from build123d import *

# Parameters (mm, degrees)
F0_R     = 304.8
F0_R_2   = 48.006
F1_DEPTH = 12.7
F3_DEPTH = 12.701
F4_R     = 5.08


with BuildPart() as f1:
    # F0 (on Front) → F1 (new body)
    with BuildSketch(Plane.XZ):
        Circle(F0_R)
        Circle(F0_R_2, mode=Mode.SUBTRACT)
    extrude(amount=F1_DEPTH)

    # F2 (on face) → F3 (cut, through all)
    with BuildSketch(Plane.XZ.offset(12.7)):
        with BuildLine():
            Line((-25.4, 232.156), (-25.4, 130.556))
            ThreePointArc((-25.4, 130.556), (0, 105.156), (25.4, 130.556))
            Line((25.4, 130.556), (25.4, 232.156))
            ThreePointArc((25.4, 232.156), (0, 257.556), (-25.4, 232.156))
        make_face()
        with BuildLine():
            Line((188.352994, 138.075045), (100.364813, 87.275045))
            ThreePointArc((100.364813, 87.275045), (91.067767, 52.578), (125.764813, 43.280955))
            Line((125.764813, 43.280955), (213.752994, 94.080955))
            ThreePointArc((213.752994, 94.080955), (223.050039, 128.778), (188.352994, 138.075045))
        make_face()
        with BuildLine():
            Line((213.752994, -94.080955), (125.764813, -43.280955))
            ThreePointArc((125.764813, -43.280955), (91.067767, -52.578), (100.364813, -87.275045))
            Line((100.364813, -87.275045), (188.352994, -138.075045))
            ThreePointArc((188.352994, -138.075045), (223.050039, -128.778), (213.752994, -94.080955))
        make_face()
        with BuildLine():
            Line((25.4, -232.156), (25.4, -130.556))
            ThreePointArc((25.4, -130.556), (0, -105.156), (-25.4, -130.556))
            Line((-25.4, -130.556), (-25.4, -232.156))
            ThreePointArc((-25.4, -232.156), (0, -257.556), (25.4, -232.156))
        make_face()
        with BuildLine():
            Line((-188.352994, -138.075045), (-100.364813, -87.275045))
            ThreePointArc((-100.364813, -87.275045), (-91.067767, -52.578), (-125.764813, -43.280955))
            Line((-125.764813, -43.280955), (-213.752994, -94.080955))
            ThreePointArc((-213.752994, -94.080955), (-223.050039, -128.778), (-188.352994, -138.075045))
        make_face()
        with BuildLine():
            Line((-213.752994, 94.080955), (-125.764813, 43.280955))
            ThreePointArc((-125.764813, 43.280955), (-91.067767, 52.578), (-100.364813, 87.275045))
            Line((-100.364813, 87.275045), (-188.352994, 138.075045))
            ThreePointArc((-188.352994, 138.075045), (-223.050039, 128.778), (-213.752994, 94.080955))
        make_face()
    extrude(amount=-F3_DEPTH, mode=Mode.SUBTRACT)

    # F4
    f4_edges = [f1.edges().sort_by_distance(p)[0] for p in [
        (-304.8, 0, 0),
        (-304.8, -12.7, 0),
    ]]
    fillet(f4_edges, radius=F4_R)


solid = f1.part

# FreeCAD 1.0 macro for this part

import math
import FreeCAD as App
import Part
import Sketcher

V = App.Vector
Q = App.Units.Quantity


def edges_at(feature, points):
    """Names of the edges that pass closest to the given points."""
    edges = feature.Shape.Edges
    near = lambda p: min(range(len(edges)), key=lambda i: edges[i].distToShape(Part.Vertex(*p))[0])
    return sorted({f"Edge{near(p) + 1}" for p in points})

doc = App.newDocument("Part")
body = doc.addObject("PartDesign::Body", "Body")

# Sketch on XZ plane
sketch1 = body.newObject("Sketcher::SketchObject", "Sketch")
sketch1.AttachmentSupport = (doc.getObject("XZ_Plane"), [""])
sketch1.MapMode = "FlatFace"
sketch1.addGeometry([
    Part.Circle(V(0, 0, 0), V(0, 0, 1), 305),
    Part.Circle(V(0, 0, 0), V(0, 0, 1), 48),
], False)
sketch1.addConstraint([
    Sketcher.Constraint("Coincident", 0, 3, -1, 1),
    Sketcher.Constraint("Coincident", 1, 3, -1, 1),
    Sketcher.Constraint("Diameter", 0, Q("24 in")),
    Sketcher.Constraint("Diameter", 1, Q("3.78 in")),
])
pad1 = body.newObject("PartDesign::Pad", "Pad")
pad1.Profile = sketch1
pad1.Length = Q("0.5 in")

# Sketch on XZ plane
sketch2 = body.newObject("Sketcher::SketchObject", "Sketch001")
sketch2.AttachmentSupport = (doc.getObject("XZ_Plane"), [""])
sketch2.MapMode = "FlatFace"
sketch2.AttachmentOffset = App.Placement(V(0, 0, 0.5 * 25.4), App.Rotation())
sketch2.addGeometry([
    Part.LineSegment(V(-25, 232, 0), V(-25, 131, 0)),  # 0
    Part.ArcOfCircle(Part.Circle(V(0, 131, 0), V(0, 0, 1), 25), math.radians(180), math.radians(360)),  # 1
    Part.LineSegment(V(25, 131, 0), V(25, 232, 0)),  # 2
    Part.ArcOfCircle(Part.Circle(V(0, 232, 0), V(0, 0, 1), 25), math.radians(0), math.radians(180)),  # 3
    Part.LineSegment(V(188, 138, 0), V(100, 87, 0)),  # 4
    Part.ArcOfCircle(Part.Circle(V(113, 65, 0), V(0, 0, 1), 25), math.radians(120), math.radians(300)),  # 5
    Part.LineSegment(V(126, 43, 0), V(214, 94, 0)),  # 6
    Part.ArcOfCircle(Part.Circle(V(201, 116, 0), V(0, 0, 1), 25), math.radians(-60), math.radians(120)),  # 7
    Part.LineSegment(V(214, -94, 0), V(126, -43, 0)),  # 8
    Part.ArcOfCircle(Part.Circle(V(113, -65, 0), V(0, 0, 1), 25), math.radians(60), math.radians(240)),  # 9
    Part.LineSegment(V(100, -87, 0), V(188, -138, 0)),  # 10
    Part.ArcOfCircle(Part.Circle(V(201, -116, 0), V(0, 0, 1), 25), math.radians(-120), math.radians(60)),  # 11
    Part.LineSegment(V(25, -232, 0), V(25, -131, 0)),  # 12
    Part.ArcOfCircle(Part.Circle(V(0, -131, 0), V(0, 0, 1), 25), math.radians(0), math.radians(180)),  # 13
    Part.LineSegment(V(-25, -131, 0), V(-25, -232, 0)),  # 14
    Part.ArcOfCircle(Part.Circle(V(0, -232, 0), V(0, 0, 1), 25), math.radians(180), math.radians(360)),  # 15
    Part.LineSegment(V(-188, -138, 0), V(-100, -87, 0)),  # 16
    Part.ArcOfCircle(Part.Circle(V(-113, -65, 0), V(0, 0, 1), 25), math.radians(-60), math.radians(120)),  # 17
    Part.LineSegment(V(-126, -43, 0), V(-214, -94, 0)),  # 18
    Part.ArcOfCircle(Part.Circle(V(-201, -116, 0), V(0, 0, 1), 25), math.radians(120), math.radians(300)),  # 19
    Part.LineSegment(V(-214, 94, 0), V(-126, 43, 0)),  # 20
    Part.ArcOfCircle(Part.Circle(V(-113, 65, 0), V(0, 0, 1), 25), math.radians(-120), math.radians(60)),  # 21
    Part.LineSegment(V(-100, 87, 0), V(-188, 138, 0)),  # 22
    Part.ArcOfCircle(Part.Circle(V(-201, 116, 0), V(0, 0, 1), 25), math.radians(60), math.radians(240)),  # 23
], False)
sketch2.addConstraint([
    Sketcher.Constraint("Tangent", 0, 2, 1, 1),
    Sketcher.Constraint("Tangent", 1, 2, 2, 1),
    Sketcher.Constraint("Tangent", 2, 2, 3, 1),
    Sketcher.Constraint("Tangent", 3, 2, 0, 1),
    Sketcher.Constraint("Tangent", 4, 2, 5, 1),
    Sketcher.Constraint("Tangent", 5, 2, 6, 1),
    Sketcher.Constraint("Tangent", 6, 2, 7, 1),
    Sketcher.Constraint("Tangent", 7, 2, 4, 1),
    Sketcher.Constraint("Tangent", 8, 2, 9, 1),
    Sketcher.Constraint("Tangent", 9, 2, 10, 1),
    Sketcher.Constraint("Tangent", 10, 2, 11, 1),
    Sketcher.Constraint("Tangent", 11, 2, 8, 1),
    Sketcher.Constraint("Tangent", 12, 2, 13, 1),
    Sketcher.Constraint("Tangent", 13, 2, 14, 1),
    Sketcher.Constraint("Tangent", 14, 2, 15, 1),
    Sketcher.Constraint("Tangent", 15, 2, 12, 1),
    Sketcher.Constraint("Tangent", 16, 2, 17, 1),
    Sketcher.Constraint("Tangent", 17, 2, 18, 1),
    Sketcher.Constraint("Tangent", 18, 2, 19, 1),
    Sketcher.Constraint("Tangent", 19, 2, 16, 1),
    Sketcher.Constraint("Tangent", 20, 2, 21, 1),
    Sketcher.Constraint("Tangent", 21, 2, 22, 1),
    Sketcher.Constraint("Tangent", 22, 2, 23, 1),
    Sketcher.Constraint("Tangent", 23, 2, 20, 1),
    Sketcher.Constraint("Vertical", 0),
    Sketcher.Constraint("Vertical", 2),
    Sketcher.Constraint("Vertical", 12),
    Sketcher.Constraint("Vertical", 14),
    Sketcher.Constraint("Equal", 3, 5),
    Sketcher.Constraint("Equal", 5, 7),
    Sketcher.Constraint("Equal", 7, 9),
    Sketcher.Constraint("Equal", 9, 11),
    Sketcher.Constraint("Equal", 11, 13),
    Sketcher.Constraint("Equal", 15, 17),
    Sketcher.Constraint("Equal", 17, 19),
    Sketcher.Constraint("Equal", 19, 21),
    Sketcher.Constraint("Equal", 21, 23),
    Sketcher.Constraint("Symmetric", 1, 3, 13, 3, -1, 1),
    Sketcher.Constraint("Symmetric", 5, 3, 17, 3, -1, 1),
    Sketcher.Constraint("Symmetric", 7, 3, 19, 3, -1, 1),
    Sketcher.Constraint("Symmetric", 9, 3, 21, 3, -1, 1),
    Sketcher.Constraint("Symmetric", 11, 3, 23, 3, -1, 1),
    Sketcher.Constraint("Symmetric", 9, 3, 17, 3, -2),
    Sketcher.Constraint("Symmetric", 11, 3, 19, 3, -2),
    Sketcher.Constraint("Symmetric", 3, 3, 15, 3, -1),
    Sketcher.Constraint("Radius", 1, Q("1 in")),
    Sketcher.Constraint("DistanceY", 0, 2, 0, 1, Q("4 in")),
    Sketcher.Constraint("Distance", 4, Q("4 in")),
    Sketcher.Constraint("Angle", 4, Q("-150 deg")),
    Sketcher.Constraint("DistanceY", -1, 1, 1, 3, Q("5.14 in")),
    Sketcher.Constraint("DistanceY", -1, 1, 5, 3, Q("2.57 in")),
    Sketcher.Constraint("DistanceX", -1, 1, 5, 3, Q("113.064812 mm")),
])
pocket1 = body.newObject("PartDesign::Pocket", "Pocket")
pocket1.Profile = sketch2
pocket1.Type = "ThroughAll"
doc.recompute()

fillet = body.newObject("PartDesign::Fillet", "Fillet")
fillet.Base = (pocket1, edges_at(pocket1, [(-304.8, 0, 0), (-304.8, -12.7, 0)]))
fillet.Radius = Q("0.2 in")

doc.recompute()
